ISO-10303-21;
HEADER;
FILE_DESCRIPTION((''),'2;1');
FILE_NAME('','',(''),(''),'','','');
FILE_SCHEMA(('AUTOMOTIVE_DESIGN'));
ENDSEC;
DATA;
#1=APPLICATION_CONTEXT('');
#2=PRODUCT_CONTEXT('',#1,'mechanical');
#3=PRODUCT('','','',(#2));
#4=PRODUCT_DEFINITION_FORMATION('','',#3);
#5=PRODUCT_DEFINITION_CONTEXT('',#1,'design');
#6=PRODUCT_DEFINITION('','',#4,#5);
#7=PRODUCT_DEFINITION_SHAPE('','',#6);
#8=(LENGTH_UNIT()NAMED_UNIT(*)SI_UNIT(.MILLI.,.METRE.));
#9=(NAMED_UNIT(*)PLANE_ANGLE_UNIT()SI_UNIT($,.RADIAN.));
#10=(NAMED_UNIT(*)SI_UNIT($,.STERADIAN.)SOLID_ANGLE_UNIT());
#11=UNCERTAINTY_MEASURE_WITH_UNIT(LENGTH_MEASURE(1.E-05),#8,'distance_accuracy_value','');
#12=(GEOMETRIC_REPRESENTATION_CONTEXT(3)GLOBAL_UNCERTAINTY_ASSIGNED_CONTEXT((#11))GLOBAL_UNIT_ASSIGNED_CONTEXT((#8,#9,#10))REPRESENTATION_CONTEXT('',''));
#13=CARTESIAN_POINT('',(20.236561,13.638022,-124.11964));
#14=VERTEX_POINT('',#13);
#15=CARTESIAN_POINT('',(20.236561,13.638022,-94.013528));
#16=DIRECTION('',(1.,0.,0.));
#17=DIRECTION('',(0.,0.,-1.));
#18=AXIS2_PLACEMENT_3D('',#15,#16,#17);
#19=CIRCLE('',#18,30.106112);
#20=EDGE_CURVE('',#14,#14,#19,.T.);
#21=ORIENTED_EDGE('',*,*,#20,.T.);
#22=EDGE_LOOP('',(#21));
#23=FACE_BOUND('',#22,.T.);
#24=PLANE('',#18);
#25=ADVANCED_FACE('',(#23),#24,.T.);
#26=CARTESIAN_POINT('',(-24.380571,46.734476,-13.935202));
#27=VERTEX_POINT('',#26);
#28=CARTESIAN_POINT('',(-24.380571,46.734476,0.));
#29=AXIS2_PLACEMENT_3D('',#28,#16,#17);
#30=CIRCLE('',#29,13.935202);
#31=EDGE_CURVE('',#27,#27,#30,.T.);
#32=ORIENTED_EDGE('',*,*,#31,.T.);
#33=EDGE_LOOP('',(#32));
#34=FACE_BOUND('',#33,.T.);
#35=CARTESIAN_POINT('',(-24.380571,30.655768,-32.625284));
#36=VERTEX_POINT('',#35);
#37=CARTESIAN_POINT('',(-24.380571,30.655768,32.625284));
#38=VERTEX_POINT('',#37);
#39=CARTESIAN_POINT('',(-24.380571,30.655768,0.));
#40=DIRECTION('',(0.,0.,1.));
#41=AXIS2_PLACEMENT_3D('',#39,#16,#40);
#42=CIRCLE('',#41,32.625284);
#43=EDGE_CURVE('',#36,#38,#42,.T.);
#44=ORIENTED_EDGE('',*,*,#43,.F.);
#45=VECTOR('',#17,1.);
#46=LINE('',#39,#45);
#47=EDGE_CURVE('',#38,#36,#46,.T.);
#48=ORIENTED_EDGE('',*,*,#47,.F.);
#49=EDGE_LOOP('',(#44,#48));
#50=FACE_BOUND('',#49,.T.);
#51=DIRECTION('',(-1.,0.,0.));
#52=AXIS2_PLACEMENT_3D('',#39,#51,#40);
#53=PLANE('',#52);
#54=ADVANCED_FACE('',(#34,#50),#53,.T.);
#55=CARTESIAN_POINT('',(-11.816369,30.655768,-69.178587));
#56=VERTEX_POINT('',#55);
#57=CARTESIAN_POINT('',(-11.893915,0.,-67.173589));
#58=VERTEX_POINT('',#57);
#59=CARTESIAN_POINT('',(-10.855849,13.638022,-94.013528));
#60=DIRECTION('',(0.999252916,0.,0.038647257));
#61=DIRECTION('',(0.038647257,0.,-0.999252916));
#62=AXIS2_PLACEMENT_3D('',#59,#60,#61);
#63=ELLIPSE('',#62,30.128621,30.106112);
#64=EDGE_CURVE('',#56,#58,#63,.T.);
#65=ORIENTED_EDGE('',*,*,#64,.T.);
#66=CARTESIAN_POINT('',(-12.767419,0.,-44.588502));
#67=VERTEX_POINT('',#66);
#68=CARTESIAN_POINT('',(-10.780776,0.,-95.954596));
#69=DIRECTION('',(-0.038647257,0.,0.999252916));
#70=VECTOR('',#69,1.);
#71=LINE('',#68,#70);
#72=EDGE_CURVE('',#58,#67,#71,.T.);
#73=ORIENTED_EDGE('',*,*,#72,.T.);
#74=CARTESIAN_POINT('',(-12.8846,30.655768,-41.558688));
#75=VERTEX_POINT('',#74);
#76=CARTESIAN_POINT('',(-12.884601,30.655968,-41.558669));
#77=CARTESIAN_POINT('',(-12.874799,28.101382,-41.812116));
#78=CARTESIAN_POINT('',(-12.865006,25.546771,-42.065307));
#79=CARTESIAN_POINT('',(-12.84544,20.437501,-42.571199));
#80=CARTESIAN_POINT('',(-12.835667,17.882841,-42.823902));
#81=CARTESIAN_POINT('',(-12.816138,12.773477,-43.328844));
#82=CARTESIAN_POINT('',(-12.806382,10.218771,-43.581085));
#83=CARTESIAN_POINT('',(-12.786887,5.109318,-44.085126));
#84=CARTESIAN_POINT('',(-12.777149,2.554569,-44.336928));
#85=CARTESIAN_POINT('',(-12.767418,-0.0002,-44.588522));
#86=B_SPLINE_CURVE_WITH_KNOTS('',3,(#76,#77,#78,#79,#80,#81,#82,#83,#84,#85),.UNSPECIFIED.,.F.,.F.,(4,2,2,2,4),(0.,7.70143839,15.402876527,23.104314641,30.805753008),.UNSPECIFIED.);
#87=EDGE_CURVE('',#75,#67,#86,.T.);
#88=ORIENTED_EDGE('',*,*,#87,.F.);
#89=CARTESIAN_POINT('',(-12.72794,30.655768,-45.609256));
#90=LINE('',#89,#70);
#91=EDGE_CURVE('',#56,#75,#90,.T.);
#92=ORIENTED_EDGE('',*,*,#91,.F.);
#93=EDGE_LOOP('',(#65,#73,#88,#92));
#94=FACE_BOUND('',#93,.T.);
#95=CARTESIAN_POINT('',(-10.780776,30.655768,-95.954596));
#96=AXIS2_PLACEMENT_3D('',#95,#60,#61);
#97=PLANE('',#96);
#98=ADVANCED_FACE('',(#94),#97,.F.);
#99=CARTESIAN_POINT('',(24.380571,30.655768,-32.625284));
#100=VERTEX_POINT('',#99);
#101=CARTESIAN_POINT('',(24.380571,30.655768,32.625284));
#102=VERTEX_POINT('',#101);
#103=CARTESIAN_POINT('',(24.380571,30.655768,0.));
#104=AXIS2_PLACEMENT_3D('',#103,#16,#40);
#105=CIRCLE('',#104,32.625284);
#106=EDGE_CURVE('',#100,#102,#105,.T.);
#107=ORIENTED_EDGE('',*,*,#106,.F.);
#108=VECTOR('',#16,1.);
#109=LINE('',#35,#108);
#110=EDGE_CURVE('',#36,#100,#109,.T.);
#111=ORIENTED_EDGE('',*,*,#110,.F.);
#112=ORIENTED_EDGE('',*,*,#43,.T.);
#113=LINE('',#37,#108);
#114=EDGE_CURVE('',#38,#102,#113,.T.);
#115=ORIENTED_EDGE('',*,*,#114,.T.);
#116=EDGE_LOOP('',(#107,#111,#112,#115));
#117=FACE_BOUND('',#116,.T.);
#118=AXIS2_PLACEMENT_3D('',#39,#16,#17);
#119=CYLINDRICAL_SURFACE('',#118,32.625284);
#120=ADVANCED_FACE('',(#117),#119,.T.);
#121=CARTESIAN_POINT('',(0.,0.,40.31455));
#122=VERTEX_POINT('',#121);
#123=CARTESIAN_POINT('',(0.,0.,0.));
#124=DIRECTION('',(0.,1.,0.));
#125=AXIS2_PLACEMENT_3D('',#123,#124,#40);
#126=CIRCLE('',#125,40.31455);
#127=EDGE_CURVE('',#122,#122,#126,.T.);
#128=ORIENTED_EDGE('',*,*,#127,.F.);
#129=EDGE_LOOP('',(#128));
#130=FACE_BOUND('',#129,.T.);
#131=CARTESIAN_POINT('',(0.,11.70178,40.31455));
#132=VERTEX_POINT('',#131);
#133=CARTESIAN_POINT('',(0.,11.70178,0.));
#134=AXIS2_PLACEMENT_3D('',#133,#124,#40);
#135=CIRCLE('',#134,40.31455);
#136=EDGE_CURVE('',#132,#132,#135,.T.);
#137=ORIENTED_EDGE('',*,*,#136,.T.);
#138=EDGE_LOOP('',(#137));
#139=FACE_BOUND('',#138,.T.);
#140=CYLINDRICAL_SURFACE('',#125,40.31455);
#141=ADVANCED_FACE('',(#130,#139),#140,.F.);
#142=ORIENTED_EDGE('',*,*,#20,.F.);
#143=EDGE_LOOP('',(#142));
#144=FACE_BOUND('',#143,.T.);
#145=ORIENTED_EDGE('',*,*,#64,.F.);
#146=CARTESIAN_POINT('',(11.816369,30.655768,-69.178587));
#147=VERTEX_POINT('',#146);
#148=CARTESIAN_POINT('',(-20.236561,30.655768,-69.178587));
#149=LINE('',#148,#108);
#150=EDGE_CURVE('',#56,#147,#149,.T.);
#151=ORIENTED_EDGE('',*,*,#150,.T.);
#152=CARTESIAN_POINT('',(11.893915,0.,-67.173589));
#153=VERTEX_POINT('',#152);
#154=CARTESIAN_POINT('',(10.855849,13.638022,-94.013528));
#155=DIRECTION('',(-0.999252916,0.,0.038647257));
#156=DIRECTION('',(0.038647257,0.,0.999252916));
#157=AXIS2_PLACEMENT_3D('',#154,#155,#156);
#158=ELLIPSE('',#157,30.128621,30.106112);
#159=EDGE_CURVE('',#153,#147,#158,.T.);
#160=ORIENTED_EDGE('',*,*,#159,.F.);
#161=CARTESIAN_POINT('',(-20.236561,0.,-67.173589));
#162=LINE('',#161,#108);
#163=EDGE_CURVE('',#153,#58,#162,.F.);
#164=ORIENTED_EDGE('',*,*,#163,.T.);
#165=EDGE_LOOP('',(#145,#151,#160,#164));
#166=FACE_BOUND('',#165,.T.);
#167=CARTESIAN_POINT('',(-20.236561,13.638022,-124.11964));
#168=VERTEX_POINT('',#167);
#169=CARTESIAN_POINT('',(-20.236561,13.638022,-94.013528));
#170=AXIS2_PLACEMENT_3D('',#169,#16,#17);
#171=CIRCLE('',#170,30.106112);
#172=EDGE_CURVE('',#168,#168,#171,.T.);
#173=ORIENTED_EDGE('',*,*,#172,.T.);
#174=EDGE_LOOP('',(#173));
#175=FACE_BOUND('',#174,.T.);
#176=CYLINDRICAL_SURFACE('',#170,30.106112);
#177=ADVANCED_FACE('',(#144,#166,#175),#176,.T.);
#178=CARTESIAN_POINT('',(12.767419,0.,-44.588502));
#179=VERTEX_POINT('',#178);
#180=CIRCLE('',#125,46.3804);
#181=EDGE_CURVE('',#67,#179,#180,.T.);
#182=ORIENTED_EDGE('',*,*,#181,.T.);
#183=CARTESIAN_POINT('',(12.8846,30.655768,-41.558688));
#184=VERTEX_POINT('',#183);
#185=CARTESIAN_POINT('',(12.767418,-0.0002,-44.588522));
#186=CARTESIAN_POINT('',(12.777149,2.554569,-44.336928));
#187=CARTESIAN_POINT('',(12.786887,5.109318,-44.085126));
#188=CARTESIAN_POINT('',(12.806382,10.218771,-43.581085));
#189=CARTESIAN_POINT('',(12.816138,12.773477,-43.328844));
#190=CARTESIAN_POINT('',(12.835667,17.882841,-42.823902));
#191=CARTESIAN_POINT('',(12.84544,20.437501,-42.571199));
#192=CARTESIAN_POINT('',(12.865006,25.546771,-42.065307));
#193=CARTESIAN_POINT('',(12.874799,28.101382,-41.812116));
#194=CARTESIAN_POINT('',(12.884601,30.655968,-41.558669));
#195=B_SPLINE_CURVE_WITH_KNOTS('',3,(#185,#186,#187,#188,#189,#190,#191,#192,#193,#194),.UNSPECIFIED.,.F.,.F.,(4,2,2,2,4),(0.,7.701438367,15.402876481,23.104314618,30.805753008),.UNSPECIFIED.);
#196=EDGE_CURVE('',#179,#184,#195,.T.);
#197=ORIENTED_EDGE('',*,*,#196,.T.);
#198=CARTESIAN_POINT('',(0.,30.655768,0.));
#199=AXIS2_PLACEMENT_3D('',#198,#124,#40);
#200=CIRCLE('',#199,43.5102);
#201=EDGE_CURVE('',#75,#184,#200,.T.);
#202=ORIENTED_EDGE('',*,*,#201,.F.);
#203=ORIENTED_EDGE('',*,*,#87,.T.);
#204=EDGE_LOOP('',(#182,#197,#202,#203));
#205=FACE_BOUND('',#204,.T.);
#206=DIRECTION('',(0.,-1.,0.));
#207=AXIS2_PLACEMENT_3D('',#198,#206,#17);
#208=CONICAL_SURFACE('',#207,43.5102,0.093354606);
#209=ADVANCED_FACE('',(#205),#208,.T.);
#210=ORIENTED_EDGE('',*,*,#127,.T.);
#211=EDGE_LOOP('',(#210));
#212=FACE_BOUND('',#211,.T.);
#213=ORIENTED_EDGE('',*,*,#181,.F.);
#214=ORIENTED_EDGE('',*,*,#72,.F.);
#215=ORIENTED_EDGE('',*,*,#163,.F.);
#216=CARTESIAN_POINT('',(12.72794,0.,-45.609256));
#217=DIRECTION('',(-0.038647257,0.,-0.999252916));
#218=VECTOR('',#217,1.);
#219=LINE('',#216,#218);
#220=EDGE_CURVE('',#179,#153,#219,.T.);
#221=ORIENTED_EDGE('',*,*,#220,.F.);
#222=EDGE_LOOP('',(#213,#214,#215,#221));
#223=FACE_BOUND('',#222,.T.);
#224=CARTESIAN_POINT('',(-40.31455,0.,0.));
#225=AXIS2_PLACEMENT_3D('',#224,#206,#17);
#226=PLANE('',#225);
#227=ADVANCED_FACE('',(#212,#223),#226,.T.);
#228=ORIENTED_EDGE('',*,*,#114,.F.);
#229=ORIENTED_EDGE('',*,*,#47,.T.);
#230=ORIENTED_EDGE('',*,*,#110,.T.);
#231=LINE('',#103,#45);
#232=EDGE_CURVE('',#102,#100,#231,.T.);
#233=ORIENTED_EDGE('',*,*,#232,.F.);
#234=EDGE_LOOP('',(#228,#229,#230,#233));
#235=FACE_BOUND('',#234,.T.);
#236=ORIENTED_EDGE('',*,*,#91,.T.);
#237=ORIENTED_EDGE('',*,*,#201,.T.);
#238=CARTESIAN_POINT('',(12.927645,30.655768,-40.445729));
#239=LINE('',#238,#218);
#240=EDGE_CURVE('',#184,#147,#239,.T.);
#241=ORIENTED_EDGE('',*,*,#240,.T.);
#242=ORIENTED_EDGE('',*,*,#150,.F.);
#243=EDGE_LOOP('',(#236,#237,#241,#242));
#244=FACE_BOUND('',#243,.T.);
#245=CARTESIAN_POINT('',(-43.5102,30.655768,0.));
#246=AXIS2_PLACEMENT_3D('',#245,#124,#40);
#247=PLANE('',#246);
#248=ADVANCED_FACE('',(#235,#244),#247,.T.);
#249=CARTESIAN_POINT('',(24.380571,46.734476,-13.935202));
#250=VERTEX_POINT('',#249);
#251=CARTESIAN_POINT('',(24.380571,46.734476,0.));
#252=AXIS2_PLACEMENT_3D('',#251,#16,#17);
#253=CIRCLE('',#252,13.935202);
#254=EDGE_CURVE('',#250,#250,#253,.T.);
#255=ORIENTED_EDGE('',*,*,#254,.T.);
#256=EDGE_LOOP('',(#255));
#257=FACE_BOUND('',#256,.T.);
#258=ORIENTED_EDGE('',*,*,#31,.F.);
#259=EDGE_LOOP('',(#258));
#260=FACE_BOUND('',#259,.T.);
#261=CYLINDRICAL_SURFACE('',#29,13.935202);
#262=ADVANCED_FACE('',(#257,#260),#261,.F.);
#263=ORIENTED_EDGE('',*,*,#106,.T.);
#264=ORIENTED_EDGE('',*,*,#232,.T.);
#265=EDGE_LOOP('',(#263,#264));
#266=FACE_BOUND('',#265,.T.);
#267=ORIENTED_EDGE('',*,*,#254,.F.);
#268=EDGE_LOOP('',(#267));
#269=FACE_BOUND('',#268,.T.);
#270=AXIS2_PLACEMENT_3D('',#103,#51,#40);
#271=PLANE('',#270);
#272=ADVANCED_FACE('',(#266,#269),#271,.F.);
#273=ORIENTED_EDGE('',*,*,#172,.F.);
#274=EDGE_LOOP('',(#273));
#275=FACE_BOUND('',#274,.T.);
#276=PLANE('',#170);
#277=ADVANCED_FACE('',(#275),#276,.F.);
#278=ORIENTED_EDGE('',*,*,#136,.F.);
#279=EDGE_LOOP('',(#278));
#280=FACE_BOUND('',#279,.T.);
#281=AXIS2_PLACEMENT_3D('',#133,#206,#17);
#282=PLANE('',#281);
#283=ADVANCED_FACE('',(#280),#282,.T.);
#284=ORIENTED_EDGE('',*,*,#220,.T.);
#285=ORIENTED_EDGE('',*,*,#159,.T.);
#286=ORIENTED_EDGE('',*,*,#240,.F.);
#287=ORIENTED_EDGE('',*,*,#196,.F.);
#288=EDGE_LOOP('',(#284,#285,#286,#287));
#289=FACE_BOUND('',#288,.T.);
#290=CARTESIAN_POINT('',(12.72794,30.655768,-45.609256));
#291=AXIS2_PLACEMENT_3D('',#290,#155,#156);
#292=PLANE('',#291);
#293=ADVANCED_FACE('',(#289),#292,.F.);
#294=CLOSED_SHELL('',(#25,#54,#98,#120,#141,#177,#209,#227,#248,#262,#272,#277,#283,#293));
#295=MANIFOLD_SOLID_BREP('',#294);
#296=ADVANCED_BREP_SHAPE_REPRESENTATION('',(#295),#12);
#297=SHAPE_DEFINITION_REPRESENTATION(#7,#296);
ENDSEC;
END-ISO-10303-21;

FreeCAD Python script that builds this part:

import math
import FreeCAD as App
import Part
import Sketcher
from FreeCAD import Vector
Q = App.Units.Quantity

doc = App.newDocument("Part")
body = doc.addObject("PartDesign::Body", "Body")

# Sketch on XY plane
sketch1 = doc.addObject("Sketcher::SketchObject", "Sketch")
body.addObject(sketch1)
sketch1.AttachmentSupport = (doc.XY_Plane, [""])
sketch1.MapMode = "FlatFace"
sketch1.addGeometry([
    Part.LineSegment(Vector(-46, 0, 0), Vector(-40, 0, 0)),  # 0
    Part.LineSegment(Vector(-40, 0, 0), Vector(-40, 12, 0)),  # 1
    Part.LineSegment(Vector(-40, 12, 0), Vector(0, 12, 0)),  # 2
    Part.LineSegment(Vector(0, 12, 0), Vector(0, 31, 0)),  # 3
    Part.LineSegment(Vector(0, 31, 0), Vector(-44, 31, 0)),  # 4
    Part.LineSegment(Vector(-44, 31, 0), Vector(-46, 0, 0)),  # 5
], False)
sketch1.addConstraint([
    Sketcher.Constraint("Coincident", 0, 2, 1, 1),
    Sketcher.Constraint("Coincident", 1, 2, 2, 1),
    Sketcher.Constraint("Coincident", 2, 2, 3, 1),
    Sketcher.Constraint("Coincident", 3, 2, 4, 1),
    Sketcher.Constraint("Coincident", 4, 2, 5, 1),
    Sketcher.Constraint("Coincident", 5, 2, 0, 1),
    Sketcher.Constraint("Horizontal", 0),
    Sketcher.Constraint("Vertical", 1),
    Sketcher.Constraint("Horizontal", 2),
    Sketcher.Constraint("Vertical", 3),
    Sketcher.Constraint("Horizontal", 4),
    Sketcher.Constraint("PointOnObject", 0, 2, -1),
    Sketcher.Constraint("PointOnObject", 2, 2, -2),
    Sketcher.Constraint("DistanceX", 4, 2, 4, 1, Q("1.713 in")),
    Sketcher.Constraint("DistanceY", 1, 1, 1, 2, Q("0.4607 in")),
    Sketcher.Constraint("DistanceX", 5, 2, -1, 1, Q("1.826 in")),
    Sketcher.Constraint("DistanceX", 0, 1, 0, 2, 6.06585),
    Sketcher.Constraint("Distance", 5, 30.789839),
])
revolution = doc.addObject("PartDesign::Revolution", "Revolution")
body.addObject(revolution)
revolution.Profile = sketch1
revolution.ReferenceAxis = (sketch1, ["V_Axis"])
revolution.Angle = 360

# Sketch on YZ plane
sketch2 = doc.addObject("Sketcher::SketchObject", "Sketch001")
body.addObject(sketch2)
sketch2.AttachmentSupport = (doc.YZ_Plane, [""])
sketch2.MapMode = "FlatFace"
sketch2.addGeometry([
    Part.ArcOfCircle(Part.Circle(Vector(31, 0, 0), Vector(0, 0, 1), 33), math.radians(-90), math.radians(90)),
    Part.LineSegment(Vector(31, 33, 0), Vector(31, -33, 0)),
    Part.Circle(Vector(47, 0, 0), Vector(0, 0, 1), 14),
], False)
sketch2.addConstraint([
    Sketcher.Constraint("Coincident", 0, 1, 1, 2),
    Sketcher.Constraint("Coincident", 1, 1, 0, 2),
    Sketcher.Constraint("Vertical", 1),
    Sketcher.Constraint("PointOnObject", 0, 3, -1),
    Sketcher.Constraint("PointOnObject", 2, 3, -1),
    Sketcher.Constraint("Diameter", 2, 27.870404),
    Sketcher.Constraint("Radius", 0, 32.625284),
    Sketcher.Constraint("DistanceX", -1, 1, 0, 1, 30.655768),
    Sketcher.Constraint("DistanceX", 0, 3, 2, 3, 16.078708),
    Sketcher.Constraint("DistanceX", 1, 1, 2, 3, 16.078708),
])
pad1 = doc.addObject("PartDesign::Pad", "Pad")
body.addObject(pad1)
pad1.Profile = sketch2
pad1.Type = "TwoLengths"
pad1.Length = 24.380571
pad1.Length2 = 24.380571

# Sketch on XZ plane
sketch3 = doc.addObject("Sketcher::SketchObject", "Sketch002")
body.addObject(sketch3)
sketch3.AttachmentSupport = (doc.XZ_Plane, [""])
sketch3.MapMode = "FlatFace"
sketch3.addGeometry([
    Part.LineSegment(Vector(13, -46, 0), Vector(11, -96, 0)),  # 0
    Part.LineSegment(Vector(11, -96, 0), Vector(-11, -96, 0)),  # 1
    Part.LineSegment(Vector(-11, -96, 0), Vector(-13, -46, 0)),  # 2
    Part.LineSegment(Vector(-13, -46, 0), Vector(-13, -40, 0)),  # 3
    Part.LineSegment(Vector(-13, -40, 0), Vector(13, -40, 0)),  # 4
    Part.LineSegment(Vector(13, -40, 0), Vector(13, -46, 0)),  # 5
], False)
sketch3.addConstraint([
    Sketcher.Constraint("Coincident", 0, 2, 1, 1),
    Sketcher.Constraint("Coincident", 1, 2, 2, 1),
    Sketcher.Constraint("Coincident", 2, 2, 3, 1),
    Sketcher.Constraint("Coincident", 3, 2, 4, 1),
    Sketcher.Constraint("Coincident", 4, 2, 5, 1),
    Sketcher.Constraint("Coincident", 5, 2, 0, 1),
    Sketcher.Constraint("Horizontal", 1),
    Sketcher.Constraint("Horizontal", 4),
    Sketcher.Constraint("Symmetric", 2, 2, 5, 2, -2),
    Sketcher.Constraint("Parallel", 2, 3),
    Sketcher.Constraint("Parallel", 0, 5),
    Sketcher.Constraint("Equal", 0, 2),
    Sketcher.Constraint("DistanceX", 2, 2, -1, 1, Q("0.5011 in")),
    Sketcher.Constraint("DistanceY", 1, 2, 2, 2, Q("1.9821 in")),
    Sketcher.Constraint("DistanceX", 1, 2, 1, 1, 21.561552),
    Sketcher.Constraint("DistanceX", 4, 1, 4, 2, 25.855291),
    Sketcher.Constraint("DistanceY", 3, 2, -1, 1, 40.445729),
])
pad2 = doc.addObject("PartDesign::Pad", "Pad001")
body.addObject(pad2)
pad2.Profile = sketch3
pad2.Length = 30.655768
pad2.Reversed = True

# Sketch on YZ plane
sketch4 = doc.addObject("Sketcher::SketchObject", "Sketch003")
body.addObject(sketch4)
sketch4.AttachmentSupport = (doc.YZ_Plane, [""])
sketch4.MapMode = "FlatFace"
sketch4.addGeometry(Part.Circle(Vector(14, -94, 0), Vector(0, 0, 1), 30), False)
sketch4.addConstraint([
    Sketcher.Constraint("Diameter", 0, 60.212224),
    Sketcher.Constraint("DistanceX", -1, 1, 0, 3, 13.638022),
    Sketcher.Constraint("DistanceY", 0, 3, -1, 1, 94.013528),
])
pad3 = doc.addObject("PartDesign::Pad", "Pad002")
body.addObject(pad3)
pad3.Profile = sketch4
pad3.Type = "TwoLengths"
pad3.Length = 20.236561
pad3.Length2 = 20.236561

doc.recompute()
